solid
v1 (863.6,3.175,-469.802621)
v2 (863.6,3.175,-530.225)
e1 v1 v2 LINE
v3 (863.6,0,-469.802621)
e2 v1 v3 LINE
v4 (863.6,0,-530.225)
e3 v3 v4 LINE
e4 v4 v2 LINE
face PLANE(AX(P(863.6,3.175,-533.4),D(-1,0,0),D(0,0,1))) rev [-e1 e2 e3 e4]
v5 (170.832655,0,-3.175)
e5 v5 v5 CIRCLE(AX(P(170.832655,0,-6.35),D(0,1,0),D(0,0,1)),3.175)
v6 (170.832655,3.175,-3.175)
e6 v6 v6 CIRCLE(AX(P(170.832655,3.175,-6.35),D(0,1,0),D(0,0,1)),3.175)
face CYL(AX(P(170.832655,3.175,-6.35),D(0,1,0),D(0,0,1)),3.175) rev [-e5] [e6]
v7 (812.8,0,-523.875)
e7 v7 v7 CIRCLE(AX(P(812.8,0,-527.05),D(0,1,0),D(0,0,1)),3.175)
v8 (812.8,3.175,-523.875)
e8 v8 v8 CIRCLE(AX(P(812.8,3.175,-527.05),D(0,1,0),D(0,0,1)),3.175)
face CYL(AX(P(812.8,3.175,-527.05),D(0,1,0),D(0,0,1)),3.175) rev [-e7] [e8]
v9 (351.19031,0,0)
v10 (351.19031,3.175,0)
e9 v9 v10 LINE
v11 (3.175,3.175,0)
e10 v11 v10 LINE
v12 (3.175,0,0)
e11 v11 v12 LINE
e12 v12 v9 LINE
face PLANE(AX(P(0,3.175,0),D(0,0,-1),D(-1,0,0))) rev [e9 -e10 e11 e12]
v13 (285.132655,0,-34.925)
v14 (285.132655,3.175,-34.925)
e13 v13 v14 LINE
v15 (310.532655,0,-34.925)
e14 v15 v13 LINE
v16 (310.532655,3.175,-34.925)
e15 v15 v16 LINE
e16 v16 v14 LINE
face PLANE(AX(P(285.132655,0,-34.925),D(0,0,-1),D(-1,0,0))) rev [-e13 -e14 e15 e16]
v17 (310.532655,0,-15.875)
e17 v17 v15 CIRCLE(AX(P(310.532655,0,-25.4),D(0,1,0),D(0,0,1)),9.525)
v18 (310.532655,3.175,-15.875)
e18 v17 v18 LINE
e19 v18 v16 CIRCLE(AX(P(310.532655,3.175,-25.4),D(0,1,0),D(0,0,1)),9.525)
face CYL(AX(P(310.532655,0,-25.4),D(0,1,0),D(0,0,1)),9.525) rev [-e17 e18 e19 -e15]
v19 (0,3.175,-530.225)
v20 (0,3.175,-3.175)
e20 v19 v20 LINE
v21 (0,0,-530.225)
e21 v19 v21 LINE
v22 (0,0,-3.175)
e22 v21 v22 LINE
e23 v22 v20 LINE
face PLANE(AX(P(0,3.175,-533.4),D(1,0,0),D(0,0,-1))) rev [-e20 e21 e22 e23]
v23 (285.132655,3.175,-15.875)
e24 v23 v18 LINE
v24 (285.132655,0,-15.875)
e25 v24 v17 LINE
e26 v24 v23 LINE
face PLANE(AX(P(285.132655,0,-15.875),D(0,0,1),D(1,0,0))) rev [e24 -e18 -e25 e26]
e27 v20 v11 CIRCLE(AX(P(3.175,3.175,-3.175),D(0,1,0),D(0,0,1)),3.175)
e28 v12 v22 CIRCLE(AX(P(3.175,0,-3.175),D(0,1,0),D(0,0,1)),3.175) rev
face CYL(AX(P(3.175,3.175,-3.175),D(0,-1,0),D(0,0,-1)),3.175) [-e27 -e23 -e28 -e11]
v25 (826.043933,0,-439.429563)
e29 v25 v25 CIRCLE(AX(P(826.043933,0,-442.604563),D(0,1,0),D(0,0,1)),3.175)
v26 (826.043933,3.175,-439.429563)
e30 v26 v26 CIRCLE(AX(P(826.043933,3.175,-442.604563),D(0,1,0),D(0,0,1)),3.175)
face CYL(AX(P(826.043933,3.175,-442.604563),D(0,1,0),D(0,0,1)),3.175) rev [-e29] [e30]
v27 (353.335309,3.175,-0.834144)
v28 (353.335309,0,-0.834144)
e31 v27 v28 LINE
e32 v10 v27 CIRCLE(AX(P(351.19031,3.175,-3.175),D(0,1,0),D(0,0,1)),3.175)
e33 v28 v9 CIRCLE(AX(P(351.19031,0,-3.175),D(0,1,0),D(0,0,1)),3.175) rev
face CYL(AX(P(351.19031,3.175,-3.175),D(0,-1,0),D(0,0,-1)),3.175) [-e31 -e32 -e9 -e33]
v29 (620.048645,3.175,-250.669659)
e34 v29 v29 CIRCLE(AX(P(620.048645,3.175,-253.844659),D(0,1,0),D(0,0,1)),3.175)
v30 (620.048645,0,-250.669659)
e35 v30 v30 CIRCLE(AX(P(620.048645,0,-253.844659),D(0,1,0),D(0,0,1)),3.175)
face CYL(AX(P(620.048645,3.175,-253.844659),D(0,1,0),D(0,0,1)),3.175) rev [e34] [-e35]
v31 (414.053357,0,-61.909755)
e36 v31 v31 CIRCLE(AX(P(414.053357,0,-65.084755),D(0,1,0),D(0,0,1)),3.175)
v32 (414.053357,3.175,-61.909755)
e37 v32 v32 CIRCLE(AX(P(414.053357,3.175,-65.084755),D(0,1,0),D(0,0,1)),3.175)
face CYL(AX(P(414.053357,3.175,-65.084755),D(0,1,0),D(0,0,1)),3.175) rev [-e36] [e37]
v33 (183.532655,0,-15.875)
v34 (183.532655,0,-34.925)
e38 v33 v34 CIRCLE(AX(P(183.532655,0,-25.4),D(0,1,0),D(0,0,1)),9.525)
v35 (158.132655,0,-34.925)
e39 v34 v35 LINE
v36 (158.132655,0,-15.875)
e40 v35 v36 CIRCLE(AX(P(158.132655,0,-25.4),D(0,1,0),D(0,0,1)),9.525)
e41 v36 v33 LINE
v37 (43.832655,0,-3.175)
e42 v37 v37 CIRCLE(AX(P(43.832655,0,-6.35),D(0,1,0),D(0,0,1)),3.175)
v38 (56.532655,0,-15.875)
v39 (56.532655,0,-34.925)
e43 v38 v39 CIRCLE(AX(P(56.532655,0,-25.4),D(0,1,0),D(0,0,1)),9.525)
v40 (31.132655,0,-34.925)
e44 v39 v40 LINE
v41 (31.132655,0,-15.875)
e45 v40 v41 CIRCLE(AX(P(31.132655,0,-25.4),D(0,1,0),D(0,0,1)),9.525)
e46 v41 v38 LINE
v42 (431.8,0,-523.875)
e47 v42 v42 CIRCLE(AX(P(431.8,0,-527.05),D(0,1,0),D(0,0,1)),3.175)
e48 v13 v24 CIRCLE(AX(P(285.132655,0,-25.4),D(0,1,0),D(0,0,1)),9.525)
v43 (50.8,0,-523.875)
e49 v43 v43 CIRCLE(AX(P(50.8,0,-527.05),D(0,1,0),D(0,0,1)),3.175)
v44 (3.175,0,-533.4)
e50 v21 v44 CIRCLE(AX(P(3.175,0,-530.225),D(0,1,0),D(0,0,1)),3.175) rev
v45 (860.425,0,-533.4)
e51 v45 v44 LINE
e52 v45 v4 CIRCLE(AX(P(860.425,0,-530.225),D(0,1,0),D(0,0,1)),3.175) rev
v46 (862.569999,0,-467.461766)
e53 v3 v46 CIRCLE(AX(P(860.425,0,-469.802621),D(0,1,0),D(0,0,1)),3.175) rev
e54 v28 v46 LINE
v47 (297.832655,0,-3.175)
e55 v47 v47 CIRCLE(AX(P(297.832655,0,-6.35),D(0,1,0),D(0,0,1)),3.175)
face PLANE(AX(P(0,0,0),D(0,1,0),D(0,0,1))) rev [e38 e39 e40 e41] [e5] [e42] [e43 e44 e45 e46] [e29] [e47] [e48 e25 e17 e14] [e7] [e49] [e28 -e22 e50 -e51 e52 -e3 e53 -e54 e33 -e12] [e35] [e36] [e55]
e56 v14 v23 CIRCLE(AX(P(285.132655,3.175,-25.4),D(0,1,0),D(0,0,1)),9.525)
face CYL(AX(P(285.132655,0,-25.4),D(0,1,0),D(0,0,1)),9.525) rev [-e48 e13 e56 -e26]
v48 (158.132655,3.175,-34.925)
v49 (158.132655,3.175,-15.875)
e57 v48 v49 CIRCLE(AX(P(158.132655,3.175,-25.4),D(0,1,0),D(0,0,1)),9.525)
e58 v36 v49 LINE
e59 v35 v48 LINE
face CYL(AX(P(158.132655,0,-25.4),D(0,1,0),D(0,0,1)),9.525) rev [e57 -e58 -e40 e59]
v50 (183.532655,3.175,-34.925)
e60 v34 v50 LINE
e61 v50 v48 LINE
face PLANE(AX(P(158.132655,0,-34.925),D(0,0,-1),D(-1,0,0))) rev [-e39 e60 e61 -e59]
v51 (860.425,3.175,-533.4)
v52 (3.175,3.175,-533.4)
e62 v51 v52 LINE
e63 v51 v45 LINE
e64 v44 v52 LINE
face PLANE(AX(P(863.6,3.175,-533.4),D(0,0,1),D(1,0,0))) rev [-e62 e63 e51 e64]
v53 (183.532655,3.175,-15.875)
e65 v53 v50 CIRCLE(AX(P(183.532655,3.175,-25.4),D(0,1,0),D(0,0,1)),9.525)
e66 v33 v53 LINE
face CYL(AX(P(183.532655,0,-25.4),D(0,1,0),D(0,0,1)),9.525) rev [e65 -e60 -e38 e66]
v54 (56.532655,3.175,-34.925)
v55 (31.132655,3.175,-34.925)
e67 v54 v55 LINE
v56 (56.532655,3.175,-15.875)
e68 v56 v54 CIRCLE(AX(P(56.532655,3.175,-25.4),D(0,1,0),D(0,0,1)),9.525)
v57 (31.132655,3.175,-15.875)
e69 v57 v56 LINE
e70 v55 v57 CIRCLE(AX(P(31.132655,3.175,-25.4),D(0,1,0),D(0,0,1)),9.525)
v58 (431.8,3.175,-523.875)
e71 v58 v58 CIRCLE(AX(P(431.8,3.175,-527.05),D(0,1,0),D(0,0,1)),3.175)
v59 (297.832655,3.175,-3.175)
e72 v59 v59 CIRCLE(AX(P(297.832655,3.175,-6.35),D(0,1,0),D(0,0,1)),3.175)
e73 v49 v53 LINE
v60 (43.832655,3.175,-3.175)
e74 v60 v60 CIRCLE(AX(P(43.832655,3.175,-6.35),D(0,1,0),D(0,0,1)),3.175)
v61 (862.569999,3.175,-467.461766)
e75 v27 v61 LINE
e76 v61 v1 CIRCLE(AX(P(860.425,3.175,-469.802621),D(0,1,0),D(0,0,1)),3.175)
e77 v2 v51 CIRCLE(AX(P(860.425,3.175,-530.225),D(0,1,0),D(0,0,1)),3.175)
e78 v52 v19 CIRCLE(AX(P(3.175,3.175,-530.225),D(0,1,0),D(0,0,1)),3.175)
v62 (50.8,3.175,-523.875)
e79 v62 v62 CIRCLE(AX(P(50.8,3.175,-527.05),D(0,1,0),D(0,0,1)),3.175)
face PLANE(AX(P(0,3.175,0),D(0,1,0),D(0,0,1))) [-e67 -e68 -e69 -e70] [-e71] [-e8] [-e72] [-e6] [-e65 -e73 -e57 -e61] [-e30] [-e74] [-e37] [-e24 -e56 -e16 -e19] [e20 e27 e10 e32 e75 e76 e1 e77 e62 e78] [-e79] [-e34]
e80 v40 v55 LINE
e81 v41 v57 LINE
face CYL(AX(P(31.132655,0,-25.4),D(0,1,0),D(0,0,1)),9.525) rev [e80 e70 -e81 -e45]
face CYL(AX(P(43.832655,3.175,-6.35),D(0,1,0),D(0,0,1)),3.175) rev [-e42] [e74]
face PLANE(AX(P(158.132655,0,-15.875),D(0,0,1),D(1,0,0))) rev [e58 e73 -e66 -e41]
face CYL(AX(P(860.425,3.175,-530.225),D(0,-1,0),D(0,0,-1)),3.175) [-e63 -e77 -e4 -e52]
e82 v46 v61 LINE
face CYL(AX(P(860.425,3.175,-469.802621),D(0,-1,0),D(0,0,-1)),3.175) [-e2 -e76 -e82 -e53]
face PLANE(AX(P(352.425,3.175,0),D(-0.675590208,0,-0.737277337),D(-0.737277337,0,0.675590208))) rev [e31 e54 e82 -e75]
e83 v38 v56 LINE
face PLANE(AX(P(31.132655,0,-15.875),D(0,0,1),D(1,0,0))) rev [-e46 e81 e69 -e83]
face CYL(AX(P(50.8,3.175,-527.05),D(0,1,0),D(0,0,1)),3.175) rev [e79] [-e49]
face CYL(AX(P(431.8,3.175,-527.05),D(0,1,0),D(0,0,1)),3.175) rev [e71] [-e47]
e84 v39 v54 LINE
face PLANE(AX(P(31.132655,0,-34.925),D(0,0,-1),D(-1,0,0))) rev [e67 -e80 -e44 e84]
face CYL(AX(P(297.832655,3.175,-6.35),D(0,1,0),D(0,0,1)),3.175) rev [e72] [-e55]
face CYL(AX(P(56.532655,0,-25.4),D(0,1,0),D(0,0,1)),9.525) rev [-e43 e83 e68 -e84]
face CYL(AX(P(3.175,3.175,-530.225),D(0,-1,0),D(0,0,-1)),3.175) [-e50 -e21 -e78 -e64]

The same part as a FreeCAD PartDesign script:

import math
import FreeCAD as App
import Part
import Sketcher

V = App.Vector
Q = App.Units.Quantity


def edges_at(feature, points):
    """Names of the edges that pass closest to the given points."""
    edges = feature.Shape.Edges
    near = lambda p: min(range(len(edges)), key=lambda i: edges[i].distToShape(Part.Vertex(*p))[0])
    return sorted({f"Edge{near(p) + 1}" for p in points})


def add_polygon(sketch, points):
    """Adds a closed chain of lines whose ends are joined by coincident constraints."""
    first, n = sketch.GeometryCount, len(points)
    for a, b in zip(points, points[1:] + points[:1]):
        sketch.addGeometry(Part.LineSegment(App.Vector(*a, 0), App.Vector(*b, 0)), False)
    for i in range(n):
        sketch.addConstraint(Sketcher.Constraint("Coincident", first + i, 2, first + (i + 1) % n, 1))

doc = App.newDocument("Part")
body = doc.addObject("PartDesign::Body", "Body")

# Sketch on XZ plane
sketch1 = doc.addObject("Sketcher::SketchObject", "Sketch")
body.addObject(sketch1)
sketch1.AttachmentSupport = (doc.XZ_Plane, [""])
sketch1.MapMode = "FlatFace"
add_polygon(sketch1, [(0, 0), (352.425, 0), (863.6, -468.405588), (863.6, -533.4), (0, -533.4)])  # lines 0-4
sketch1.addConstraint(Sketcher.Constraint("Horizontal", 0))
sketch1.addConstraint(Sketcher.Constraint("Vertical", 2))
sketch1.addConstraint(Sketcher.Constraint("Horizontal", 3))
sketch1.addConstraint(Sketcher.Constraint("Vertical", 4))
sketch1.addConstraint(Sketcher.Constraint("Coincident", 4, 2, -1, 1))
sketch1.addConstraint(Sketcher.Constraint("DistanceX", 3, 2, 3, 1, Q("34 in")))
sketch1.addConstraint(Sketcher.Constraint("DistanceY", 4, 1, 4, 2, Q("21 in")))
sketch1.addConstraint(Sketcher.Constraint("Angle", 1, Q("-42.5 deg")))
sketch1.addConstraint(Sketcher.Constraint("DistanceX", 0, 1, 0, 2, Q("13.875 in")))
pad1 = doc.addObject("PartDesign::Pad", "Pad")
body.addObject(pad1)
pad1.Profile = sketch1
pad1.Length = Q("0.125 in")
pad1.Reversed = True
doc.recompute()

fillet = doc.addObject("PartDesign::Fillet", "Fillet")
body.addObject(fillet)
fillet.Base = (pad1, edges_at(pad1, [
    (0, 1.587, -533.4),
    (863.6, 1.587, -533.4),
    (863.6, 1.587, -468.406),
    (352.425, 1.587, 0),
    (0, 1.587, 0),
]))
fillet.Radius = Q("0.125 in")

# Sketch on XZ plane
sketch2 = doc.addObject("Sketcher::SketchObject", "Sketch001")
body.addObject(sketch2)
sketch2.AttachmentSupport = (doc.XZ_Plane, [""])
sketch2.MapMode = "FlatFace"
sketch2.AttachmentOffset = App.Placement(V(0, 0, -0.125 * 25.4), App.Rotation())
sketch2.addGeometry(Part.Circle(V(43.832655, -6.35, 0), V(0, 0, 1), 3.175), False)
sketch2.addGeometry(Part.Circle(V(170.832655, -6.35, 0), V(0, 0, 1), 3.175), False)
sketch2.addGeometry(Part.Circle(V(297.832655, -6.35, 0), V(0, 0, 1), 3.175), False)
sketch2.addGeometry(Part.Circle(V(414.053357, -65.084755, 0), V(0, 0, 1), 3.175), False)
sketch2.addGeometry(Part.Circle(V(620.048645, -253.844659, 0), V(0, 0, 1), 3.175), False)
sketch2.addGeometry(Part.Circle(V(826.043933, -442.604563, 0), V(0, 0, 1), 3.175), False)
sketch2.addGeometry(Part.Circle(V(50.8, -527.05, 0), V(0, 0, 1), 3.175), False)
sketch2.addGeometry(Part.Circle(V(431.8, -527.05, 0), V(0, 0, 1), 3.175), False)
sketch2.addGeometry(Part.Circle(V(812.8, -527.05, 0), V(0, 0, 1), 3.175), False)
sketch2.addConstraint(Sketcher.Constraint("Equal", 0, 1))
sketch2.addConstraint(Sketcher.Constraint("Equal", 1, 2))
sketch2.addConstraint(Sketcher.Constraint("Equal", 2, 3))
sketch2.addConstraint(Sketcher.Constraint("Equal", 3, 4))
sketch2.addConstraint(Sketcher.Constraint("Equal", 4, 5))
sketch2.addConstraint(Sketcher.Constraint("Equal", 5, 6))
sketch2.addConstraint(Sketcher.Constraint("Equal", 6, 7))
sketch2.addConstraint(Sketcher.Constraint("Equal", 7, 8))
sketch2.addConstraint(Sketcher.Constraint("Horizontal", 0, 3, 1, 3))
sketch2.addConstraint(Sketcher.Constraint("Horizontal", 1, 3, 2, 3))
sketch2.addConstraint(Sketcher.Constraint("Horizontal", 6, 3, 7, 3))
sketch2.addConstraint(Sketcher.Constraint("Horizontal", 7, 3, 8, 3))
sketch2.addConstraint(Sketcher.Constraint("Diameter", 0, Q("0.25 in")))
sketch2.addConstraint(Sketcher.Constraint("DistanceX", -1, 1, 6, 3, Q("2 in")))
sketch2.addConstraint(Sketcher.Constraint("DistanceX", -1, 1, 7, 3, Q("17 in")))
sketch2.addConstraint(Sketcher.Constraint("DistanceX", -1, 1, 8, 3, Q("32 in")))
sketch2.addConstraint(Sketcher.Constraint("DistanceX", 0, 3, 1, 3, Q("5 in")))
sketch2.addConstraint(Sketcher.Constraint("DistanceX", 1, 3, 2, 3, Q("5 in")))
sketch2.addConstraint(Sketcher.Constraint("DistanceY", 6, 3, 0, 3, Q("20.5 in")))
sketch2.addConstraint(Sketcher.Constraint("DistanceY", 0, 3, -1, 1, Q("0.25 in")))
sketch2.addConstraint(Sketcher.Constraint("DistanceX", 2, 3, 3, 3, Q("116.220702 mm")))
sketch2.addConstraint(Sketcher.Constraint("DistanceY", 4, 3, -1, 1, Q("253.844659 mm")))
sketch2.addConstraint(Sketcher.Constraint("DistanceX", 2, 3, 4, 3, Q("322.21599 mm")))
sketch2.addConstraint(Sketcher.Constraint("DistanceY", 5, 3, 3, 3, Q("377.519808 mm")))
sketch2.addConstraint(Sketcher.Constraint("DistanceX", -1, 1, 0, 3, Q("43.832655 mm")))
sketch2.addConstraint(Sketcher.Constraint("DistanceY", 3, 3, -1, 1, Q("65.084755 mm")))
sketch2.addConstraint(Sketcher.Constraint("DistanceX", -1, 1, 5, 3, Q("826.043933 mm")))
doc.recompute()
hole = doc.addObject("PartDesign::Hole", "Hole")
body.addObject(hole)
hole.Profile = sketch2
hole.ThreadType = "None"
hole.Diameter = Q("0.25 in")
hole.DepthType = "ThroughAll"
hole.Reversed = True

# Sketch on XZ plane
sketch3 = doc.addObject("Sketcher::SketchObject", "Sketch002")
body.addObject(sketch3)
sketch3.AttachmentSupport = (doc.XZ_Plane, [""])
sketch3.MapMode = "FlatFace"
sketch3.AttachmentOffset = App.Placement(V(0, 0, -0.125 * 25.4), App.Rotation())
sketch3.addGeometry(Part.Circle(V(297.832655, -6.35, 0), V(0, 0, 1), 3.175), False)
sketch3.addGeometry(Part.Circle(V(170.832655, -6.35, 0), V(0, 0, 1), 3.175), False)
sketch3.addGeometry(Part.Circle(V(43.832655, -6.35, 0), V(0, 0, 1), 3.175), False)
sketch3.addGeometry(Part.LineSegment(V(56.532655, -34.925, 0), V(31.132655, -34.925, 0)), False)
sketch3.addGeometry(Part.ArcOfCircle(Part.Circle(V(31.132655, -25.4, 0), V(0, 0, 1), 9.525), math.radians(90), math.radians(270)), False)
sketch3.addGeometry(Part.LineSegment(V(31.132655, -15.875, 0), V(56.532655, -15.875, 0)), False)
sketch3.addGeometry(Part.ArcOfCircle(Part.Circle(V(56.532655, -25.4, 0), V(0, 0, 1), 9.525), math.radians(-90), math.radians(90)), False)
sketch3.addGeometry(Part.LineSegment(V(183.532655, -34.925, 0), V(158.132655, -34.925, 0)), False)
sketch3.addGeometry(Part.ArcOfCircle(Part.Circle(V(158.132655, -25.4, 0), V(0, 0, 1), 9.525), math.radians(90), math.radians(270)), False)
sketch3.addGeometry(Part.LineSegment(V(158.132655, -15.875, 0), V(183.532655, -15.875, 0)), False)
sketch3.addGeometry(Part.ArcOfCircle(Part.Circle(V(183.532655, -25.4, 0), V(0, 0, 1), 9.525), math.radians(-90), math.radians(90)), False)
sketch3.addGeometry(Part.LineSegment(V(310.532655, -34.925, 0), V(285.132655, -34.925, 0)), False)
sketch3.addGeometry(Part.ArcOfCircle(Part.Circle(V(285.132655, -25.4, 0), V(0, 0, 1), 9.525), math.radians(90), math.radians(270)), False)
sketch3.addGeometry(Part.LineSegment(V(285.132655, -15.875, 0), V(310.532655, -15.875, 0)), False)
sketch3.addGeometry(Part.ArcOfCircle(Part.Circle(V(310.532655, -25.4, 0), V(0, 0, 1), 9.525), math.radians(-90), math.radians(90)), False)
sketch3.addConstraint(Sketcher.Constraint("Tangent", 3, 2, 4, 2))
sketch3.addConstraint(Sketcher.Constraint("Tangent", 4, 1, 5, 1))
sketch3.addConstraint(Sketcher.Constraint("Tangent", 5, 2, 6, 2))
sketch3.addConstraint(Sketcher.Constraint("Tangent", 6, 1, 3, 1))
sketch3.addConstraint(Sketcher.Constraint("Tangent", 7, 2, 8, 2))
sketch3.addConstraint(Sketcher.Constraint("Tangent", 8, 1, 9, 1))
sketch3.addConstraint(Sketcher.Constraint("Tangent", 9, 2, 10, 2))
sketch3.addConstraint(Sketcher.Constraint("Tangent", 10, 1, 7, 1))
sketch3.addConstraint(Sketcher.Constraint("Tangent", 11, 2, 12, 2))
sketch3.addConstraint(Sketcher.Constraint("Tangent", 12, 1, 13, 1))
sketch3.addConstraint(Sketcher.Constraint("Tangent", 13, 2, 14, 2))
sketch3.addConstraint(Sketcher.Constraint("Tangent", 14, 1, 11, 1))
sketch3.addConstraint(Sketcher.Constraint("Horizontal", 3))
sketch3.addConstraint(Sketcher.Constraint("Horizontal", 5))
sketch3.addConstraint(Sketcher.Constraint("Horizontal", 7))
sketch3.addConstraint(Sketcher.Constraint("Horizontal", 9))
sketch3.addConstraint(Sketcher.Constraint("Horizontal", 11))
sketch3.addConstraint(Sketcher.Constraint("Horizontal", 13))
sketch3.addConstraint(Sketcher.Constraint("Equal", 0, 1))
sketch3.addConstraint(Sketcher.Constraint("Equal", 1, 2))
sketch3.addConstraint(Sketcher.Constraint("Equal", 6, 8))
sketch3.addConstraint(Sketcher.Constraint("Equal", 10, 12))
sketch3.addConstraint(Sketcher.Constraint("Horizontal", 0, 3, 1, 3))
sketch3.addConstraint(Sketcher.Constraint("Horizontal", 1, 3, 2, 3))
sketch3.addConstraint(Sketcher.Constraint("Horizontal", 6, 3, 8, 3))
sketch3.addConstraint(Sketcher.Constraint("Horizontal", 10, 3, 12, 3))
sketch3.addConstraint(Sketcher.Constraint("Equal", 5, 7))
sketch3.addConstraint(Sketcher.Constraint("Equal", 9, 11))
sketch3.addConstraint(Sketcher.Constraint("Diameter", 0, Q("0.25 in")))
sketch3.addConstraint(Sketcher.Constraint("DistanceX", 3, 2, 3, 1, Q("1 in")))
sketch3.addConstraint(Sketcher.Constraint("DistanceY", 4, 3, -1, 1, Q("1 in")))
sketch3.addConstraint(Sketcher.Constraint("Radius", 4, Q("0.375 in")))
sketch3.addConstraint(Sketcher.Constraint("DistanceX", 1, 3, 0, 3, Q("5 in")))
sketch3.addConstraint(Sketcher.Constraint("DistanceX", 2, 3, 1, 3, Q("5 in")))
sketch3.addConstraint(Sketcher.Constraint("DistanceX", 6, 3, 8, 3, Q("4 in")))
sketch3.addConstraint(Sketcher.Constraint("DistanceX", 10, 3, 12, 3, Q("4 in")))
sketch3.addConstraint(Sketcher.Constraint("DistanceX", 4, 3, 2, 3, Q("0.5 in")))
sketch3.addConstraint(Sketcher.Constraint("DistanceY", 0, 3, -1, 1, Q("0.25 in")))
sketch3.addConstraint(Sketcher.Constraint("DistanceX", -1, 1, 0, 3, Q("297.832655 mm")))
pocket1 = doc.addObject("PartDesign::Pocket", "Pocket")
body.addObject(pocket1)
pocket1.Profile = sketch3
pocket1.Type = "ThroughAll"
pocket1.Reversed = True

doc.recompute()
